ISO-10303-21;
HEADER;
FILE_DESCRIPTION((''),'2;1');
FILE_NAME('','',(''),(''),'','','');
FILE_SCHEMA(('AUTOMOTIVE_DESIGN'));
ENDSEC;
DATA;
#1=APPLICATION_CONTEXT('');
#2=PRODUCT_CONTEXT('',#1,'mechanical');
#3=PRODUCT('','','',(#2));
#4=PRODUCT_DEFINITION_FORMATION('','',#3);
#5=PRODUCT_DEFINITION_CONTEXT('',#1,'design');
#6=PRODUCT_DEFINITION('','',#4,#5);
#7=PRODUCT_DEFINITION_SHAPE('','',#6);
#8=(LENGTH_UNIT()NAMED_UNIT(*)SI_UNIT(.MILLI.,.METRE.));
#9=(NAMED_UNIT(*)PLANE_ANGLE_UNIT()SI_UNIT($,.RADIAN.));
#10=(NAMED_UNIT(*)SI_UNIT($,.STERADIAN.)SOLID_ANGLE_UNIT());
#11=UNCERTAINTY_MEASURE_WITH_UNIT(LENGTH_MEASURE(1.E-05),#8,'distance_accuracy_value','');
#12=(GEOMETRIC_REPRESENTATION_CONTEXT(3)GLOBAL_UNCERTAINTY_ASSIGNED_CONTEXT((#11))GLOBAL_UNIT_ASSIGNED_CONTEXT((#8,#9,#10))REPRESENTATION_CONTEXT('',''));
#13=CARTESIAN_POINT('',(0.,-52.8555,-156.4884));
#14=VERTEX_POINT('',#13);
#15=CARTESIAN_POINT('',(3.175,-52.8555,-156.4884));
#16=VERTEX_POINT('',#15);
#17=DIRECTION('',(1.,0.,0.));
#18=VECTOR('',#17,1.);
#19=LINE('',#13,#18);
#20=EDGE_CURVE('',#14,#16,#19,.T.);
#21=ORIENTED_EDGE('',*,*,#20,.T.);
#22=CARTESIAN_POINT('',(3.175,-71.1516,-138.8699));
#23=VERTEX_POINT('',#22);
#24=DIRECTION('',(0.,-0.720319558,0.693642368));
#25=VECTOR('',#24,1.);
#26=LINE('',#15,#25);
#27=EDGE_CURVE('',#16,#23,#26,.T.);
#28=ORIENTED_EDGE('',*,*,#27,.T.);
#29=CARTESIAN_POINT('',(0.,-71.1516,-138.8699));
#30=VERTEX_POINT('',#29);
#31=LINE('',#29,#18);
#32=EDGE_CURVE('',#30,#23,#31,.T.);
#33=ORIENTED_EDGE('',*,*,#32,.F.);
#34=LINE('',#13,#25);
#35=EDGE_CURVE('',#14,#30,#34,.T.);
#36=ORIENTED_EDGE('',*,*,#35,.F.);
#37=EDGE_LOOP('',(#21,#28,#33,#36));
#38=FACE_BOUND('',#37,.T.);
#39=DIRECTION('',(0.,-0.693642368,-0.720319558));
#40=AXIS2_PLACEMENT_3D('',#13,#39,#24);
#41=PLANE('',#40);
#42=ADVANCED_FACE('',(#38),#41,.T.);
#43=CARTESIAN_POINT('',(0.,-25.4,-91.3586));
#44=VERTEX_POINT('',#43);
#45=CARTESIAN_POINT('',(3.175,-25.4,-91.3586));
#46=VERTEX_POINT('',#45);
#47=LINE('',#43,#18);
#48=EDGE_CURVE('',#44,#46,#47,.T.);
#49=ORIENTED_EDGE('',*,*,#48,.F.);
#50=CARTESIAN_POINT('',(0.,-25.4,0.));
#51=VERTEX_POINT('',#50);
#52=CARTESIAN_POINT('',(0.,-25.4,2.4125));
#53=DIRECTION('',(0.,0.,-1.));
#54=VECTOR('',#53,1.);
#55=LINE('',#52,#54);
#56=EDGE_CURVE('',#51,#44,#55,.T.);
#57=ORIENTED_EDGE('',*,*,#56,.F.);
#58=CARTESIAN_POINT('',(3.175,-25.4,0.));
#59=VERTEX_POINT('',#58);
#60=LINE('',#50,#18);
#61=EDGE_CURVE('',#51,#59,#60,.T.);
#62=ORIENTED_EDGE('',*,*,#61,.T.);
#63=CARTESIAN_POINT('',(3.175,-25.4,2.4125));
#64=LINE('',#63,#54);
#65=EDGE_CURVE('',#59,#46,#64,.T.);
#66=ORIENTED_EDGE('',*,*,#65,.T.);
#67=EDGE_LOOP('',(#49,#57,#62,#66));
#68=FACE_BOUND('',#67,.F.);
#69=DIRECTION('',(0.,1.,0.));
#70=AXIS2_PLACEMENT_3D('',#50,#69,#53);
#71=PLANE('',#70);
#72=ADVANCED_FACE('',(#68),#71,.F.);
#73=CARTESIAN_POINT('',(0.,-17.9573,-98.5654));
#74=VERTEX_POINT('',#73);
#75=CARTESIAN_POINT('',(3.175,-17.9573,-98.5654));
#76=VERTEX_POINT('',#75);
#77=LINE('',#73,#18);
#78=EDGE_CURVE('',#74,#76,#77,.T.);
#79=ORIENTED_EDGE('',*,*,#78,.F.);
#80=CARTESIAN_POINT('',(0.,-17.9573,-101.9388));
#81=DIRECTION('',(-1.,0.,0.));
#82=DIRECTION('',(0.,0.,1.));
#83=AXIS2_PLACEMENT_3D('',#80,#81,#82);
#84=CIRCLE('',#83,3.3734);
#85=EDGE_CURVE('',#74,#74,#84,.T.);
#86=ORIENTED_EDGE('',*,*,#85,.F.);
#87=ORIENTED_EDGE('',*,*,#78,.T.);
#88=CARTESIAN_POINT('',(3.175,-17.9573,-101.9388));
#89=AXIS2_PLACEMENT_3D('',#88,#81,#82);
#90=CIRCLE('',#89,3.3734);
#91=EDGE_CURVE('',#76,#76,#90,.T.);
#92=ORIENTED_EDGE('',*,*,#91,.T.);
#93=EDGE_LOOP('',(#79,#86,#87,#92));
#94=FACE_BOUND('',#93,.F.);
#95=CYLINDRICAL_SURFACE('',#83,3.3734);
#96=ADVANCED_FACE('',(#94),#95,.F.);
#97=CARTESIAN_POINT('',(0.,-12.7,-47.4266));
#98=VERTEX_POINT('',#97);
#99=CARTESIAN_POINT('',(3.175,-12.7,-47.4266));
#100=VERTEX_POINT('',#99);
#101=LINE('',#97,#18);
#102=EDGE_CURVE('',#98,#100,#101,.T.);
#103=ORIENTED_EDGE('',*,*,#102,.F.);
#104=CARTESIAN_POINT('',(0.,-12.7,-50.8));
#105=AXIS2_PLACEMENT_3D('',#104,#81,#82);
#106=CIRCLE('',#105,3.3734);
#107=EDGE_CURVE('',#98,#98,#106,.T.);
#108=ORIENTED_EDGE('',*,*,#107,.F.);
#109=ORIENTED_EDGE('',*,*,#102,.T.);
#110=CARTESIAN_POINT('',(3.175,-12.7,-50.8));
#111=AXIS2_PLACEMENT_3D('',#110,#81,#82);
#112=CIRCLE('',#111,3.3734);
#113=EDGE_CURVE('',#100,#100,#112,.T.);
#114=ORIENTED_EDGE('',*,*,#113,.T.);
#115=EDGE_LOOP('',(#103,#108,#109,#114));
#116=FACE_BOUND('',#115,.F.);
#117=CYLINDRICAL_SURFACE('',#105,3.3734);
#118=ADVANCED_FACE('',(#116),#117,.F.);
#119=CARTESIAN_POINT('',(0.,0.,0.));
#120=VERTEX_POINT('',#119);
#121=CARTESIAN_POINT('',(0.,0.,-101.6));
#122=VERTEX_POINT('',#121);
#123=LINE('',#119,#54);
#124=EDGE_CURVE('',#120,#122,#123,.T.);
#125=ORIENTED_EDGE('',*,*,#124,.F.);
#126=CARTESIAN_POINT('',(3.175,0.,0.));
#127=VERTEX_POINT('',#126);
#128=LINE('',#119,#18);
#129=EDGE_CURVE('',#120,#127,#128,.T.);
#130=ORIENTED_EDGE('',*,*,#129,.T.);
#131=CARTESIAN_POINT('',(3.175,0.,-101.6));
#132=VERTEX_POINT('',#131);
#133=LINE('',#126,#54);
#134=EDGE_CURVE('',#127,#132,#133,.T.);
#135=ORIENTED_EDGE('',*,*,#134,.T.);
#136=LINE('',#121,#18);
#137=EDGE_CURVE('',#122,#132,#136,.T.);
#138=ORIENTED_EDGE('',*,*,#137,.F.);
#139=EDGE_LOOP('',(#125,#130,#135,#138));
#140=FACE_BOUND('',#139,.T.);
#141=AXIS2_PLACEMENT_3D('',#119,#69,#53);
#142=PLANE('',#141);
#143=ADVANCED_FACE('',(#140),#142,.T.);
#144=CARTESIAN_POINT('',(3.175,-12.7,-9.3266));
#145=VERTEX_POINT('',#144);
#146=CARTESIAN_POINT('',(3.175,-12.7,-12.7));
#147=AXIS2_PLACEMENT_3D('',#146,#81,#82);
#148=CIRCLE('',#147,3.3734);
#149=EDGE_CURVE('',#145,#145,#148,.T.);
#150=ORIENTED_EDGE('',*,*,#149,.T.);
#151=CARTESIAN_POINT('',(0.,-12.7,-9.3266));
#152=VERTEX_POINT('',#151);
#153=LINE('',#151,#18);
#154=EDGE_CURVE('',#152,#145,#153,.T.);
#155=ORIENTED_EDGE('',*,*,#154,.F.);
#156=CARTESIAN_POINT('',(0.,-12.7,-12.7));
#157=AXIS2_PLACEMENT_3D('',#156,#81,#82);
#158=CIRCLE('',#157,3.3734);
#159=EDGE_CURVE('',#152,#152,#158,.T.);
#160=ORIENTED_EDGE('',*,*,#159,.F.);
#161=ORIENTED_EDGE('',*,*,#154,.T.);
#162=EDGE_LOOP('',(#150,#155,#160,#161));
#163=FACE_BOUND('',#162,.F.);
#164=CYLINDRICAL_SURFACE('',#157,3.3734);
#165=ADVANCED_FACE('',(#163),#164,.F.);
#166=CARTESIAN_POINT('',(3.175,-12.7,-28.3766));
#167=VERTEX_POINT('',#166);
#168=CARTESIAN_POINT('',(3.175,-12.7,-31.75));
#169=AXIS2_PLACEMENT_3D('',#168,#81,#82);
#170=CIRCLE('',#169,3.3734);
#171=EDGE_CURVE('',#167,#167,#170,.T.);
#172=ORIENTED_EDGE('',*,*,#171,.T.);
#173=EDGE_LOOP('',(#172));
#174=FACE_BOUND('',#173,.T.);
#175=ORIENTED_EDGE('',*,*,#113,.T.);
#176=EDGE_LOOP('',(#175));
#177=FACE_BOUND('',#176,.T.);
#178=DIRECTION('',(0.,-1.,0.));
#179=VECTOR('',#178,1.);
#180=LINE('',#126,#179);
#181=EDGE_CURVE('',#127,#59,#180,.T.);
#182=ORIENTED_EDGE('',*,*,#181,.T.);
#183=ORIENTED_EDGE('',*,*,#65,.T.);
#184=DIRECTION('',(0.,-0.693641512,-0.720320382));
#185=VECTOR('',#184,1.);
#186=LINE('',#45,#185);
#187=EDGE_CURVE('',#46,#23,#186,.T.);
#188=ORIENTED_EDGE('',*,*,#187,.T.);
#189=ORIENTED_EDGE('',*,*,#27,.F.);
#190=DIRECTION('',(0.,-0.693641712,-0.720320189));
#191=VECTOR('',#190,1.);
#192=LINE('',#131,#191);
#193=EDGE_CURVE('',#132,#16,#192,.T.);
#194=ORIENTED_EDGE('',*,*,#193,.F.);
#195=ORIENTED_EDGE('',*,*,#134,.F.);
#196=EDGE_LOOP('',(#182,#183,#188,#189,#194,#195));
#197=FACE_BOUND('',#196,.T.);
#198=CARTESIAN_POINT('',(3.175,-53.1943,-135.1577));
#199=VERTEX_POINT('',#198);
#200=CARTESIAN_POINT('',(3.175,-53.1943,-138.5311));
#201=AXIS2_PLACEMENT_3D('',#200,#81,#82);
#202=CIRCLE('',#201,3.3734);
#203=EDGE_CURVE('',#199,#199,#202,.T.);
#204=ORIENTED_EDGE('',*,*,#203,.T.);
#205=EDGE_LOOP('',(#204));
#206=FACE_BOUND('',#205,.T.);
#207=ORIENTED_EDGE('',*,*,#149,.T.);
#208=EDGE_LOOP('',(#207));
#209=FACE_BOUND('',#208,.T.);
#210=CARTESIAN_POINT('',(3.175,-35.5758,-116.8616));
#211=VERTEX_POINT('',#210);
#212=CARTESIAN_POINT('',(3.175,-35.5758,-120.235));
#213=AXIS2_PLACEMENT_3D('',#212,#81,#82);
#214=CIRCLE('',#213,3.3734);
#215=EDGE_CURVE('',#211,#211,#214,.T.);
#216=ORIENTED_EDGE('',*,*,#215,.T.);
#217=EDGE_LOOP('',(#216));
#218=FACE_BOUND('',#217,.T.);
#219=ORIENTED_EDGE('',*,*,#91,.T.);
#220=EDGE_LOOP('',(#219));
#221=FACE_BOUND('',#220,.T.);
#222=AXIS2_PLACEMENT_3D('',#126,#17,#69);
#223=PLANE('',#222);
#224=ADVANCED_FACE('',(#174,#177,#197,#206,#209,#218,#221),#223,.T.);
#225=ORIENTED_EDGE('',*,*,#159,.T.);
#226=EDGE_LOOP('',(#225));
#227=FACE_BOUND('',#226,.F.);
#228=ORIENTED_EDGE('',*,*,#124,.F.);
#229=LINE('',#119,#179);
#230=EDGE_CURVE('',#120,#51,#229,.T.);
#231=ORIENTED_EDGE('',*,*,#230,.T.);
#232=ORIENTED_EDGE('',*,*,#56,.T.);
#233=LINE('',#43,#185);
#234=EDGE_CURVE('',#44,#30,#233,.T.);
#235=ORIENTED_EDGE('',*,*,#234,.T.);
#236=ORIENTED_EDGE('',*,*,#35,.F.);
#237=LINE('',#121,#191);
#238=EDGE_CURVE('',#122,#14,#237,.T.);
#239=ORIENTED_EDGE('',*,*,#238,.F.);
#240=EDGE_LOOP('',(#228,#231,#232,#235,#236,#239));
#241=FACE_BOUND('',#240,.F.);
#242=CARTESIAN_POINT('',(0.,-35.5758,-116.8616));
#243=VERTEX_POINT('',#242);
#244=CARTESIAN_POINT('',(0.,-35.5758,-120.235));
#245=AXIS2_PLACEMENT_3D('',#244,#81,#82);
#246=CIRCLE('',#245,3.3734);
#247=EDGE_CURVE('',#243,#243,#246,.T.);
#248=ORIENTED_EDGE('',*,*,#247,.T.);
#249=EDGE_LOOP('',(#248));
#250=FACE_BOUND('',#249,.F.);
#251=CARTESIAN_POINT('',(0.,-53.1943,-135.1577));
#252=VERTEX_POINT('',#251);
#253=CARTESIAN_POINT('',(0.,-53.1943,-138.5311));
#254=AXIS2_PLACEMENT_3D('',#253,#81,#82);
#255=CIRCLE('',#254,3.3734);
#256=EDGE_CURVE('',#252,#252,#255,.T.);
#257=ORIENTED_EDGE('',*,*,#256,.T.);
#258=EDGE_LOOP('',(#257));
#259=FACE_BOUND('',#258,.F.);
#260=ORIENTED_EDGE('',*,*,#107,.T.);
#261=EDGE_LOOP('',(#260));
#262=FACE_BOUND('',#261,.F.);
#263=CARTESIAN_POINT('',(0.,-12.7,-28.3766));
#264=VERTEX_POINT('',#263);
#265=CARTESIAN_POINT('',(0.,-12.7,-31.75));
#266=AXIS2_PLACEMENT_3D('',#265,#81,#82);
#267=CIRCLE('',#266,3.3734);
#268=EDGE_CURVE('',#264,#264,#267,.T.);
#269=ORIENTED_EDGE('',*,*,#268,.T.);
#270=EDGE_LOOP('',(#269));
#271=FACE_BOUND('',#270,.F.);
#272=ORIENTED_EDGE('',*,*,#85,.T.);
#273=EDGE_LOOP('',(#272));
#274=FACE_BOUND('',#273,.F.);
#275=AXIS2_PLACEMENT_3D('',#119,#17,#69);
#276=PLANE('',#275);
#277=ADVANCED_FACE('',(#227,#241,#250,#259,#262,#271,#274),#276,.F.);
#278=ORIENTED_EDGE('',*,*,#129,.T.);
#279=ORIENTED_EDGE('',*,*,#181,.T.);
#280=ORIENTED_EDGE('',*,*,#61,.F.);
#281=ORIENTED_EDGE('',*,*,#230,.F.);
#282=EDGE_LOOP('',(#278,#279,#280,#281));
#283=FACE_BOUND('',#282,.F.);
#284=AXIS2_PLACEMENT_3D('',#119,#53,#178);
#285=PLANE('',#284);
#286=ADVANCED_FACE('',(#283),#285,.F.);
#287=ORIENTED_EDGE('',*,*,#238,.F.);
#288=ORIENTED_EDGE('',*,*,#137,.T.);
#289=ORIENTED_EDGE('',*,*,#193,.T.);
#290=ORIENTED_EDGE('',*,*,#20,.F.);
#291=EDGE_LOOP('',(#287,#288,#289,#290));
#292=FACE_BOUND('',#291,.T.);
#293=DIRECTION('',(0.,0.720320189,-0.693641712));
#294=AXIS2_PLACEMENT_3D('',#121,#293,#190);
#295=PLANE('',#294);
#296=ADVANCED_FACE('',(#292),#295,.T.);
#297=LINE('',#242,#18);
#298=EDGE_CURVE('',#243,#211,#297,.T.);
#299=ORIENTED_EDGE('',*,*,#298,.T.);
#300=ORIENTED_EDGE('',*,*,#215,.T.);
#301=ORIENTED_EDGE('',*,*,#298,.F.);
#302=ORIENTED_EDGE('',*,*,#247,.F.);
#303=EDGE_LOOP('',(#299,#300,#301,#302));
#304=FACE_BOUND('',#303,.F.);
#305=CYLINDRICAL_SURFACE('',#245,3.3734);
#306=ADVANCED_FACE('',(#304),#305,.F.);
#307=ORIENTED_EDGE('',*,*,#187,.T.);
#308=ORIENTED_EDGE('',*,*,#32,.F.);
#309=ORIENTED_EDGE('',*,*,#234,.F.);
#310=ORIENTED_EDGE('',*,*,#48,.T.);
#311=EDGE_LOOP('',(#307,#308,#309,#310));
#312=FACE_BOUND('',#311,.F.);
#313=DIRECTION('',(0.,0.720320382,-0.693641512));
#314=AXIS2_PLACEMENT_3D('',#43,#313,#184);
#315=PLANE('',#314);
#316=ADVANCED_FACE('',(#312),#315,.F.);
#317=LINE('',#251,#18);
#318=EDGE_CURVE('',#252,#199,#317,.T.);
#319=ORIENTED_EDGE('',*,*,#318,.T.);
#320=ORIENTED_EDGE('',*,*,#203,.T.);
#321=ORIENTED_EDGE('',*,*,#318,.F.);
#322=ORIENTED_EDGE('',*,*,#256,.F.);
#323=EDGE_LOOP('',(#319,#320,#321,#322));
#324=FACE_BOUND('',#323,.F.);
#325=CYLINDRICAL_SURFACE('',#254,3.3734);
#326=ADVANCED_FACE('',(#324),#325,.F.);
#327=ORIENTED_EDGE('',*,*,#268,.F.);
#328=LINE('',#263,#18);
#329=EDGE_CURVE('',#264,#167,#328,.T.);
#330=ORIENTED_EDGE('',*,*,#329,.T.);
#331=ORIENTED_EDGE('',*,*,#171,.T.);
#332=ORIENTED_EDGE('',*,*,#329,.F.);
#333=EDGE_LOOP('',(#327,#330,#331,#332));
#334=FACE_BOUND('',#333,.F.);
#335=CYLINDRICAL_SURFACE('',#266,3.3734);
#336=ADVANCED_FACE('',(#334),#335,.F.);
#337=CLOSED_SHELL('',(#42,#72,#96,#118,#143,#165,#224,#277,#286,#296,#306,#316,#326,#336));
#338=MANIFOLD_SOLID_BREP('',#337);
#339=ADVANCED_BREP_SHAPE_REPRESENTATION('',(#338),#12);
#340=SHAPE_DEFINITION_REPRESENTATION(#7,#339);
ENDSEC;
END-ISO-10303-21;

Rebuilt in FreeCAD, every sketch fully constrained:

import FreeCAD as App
import Part
import Sketcher
from FreeCAD import Vector
Q = App.Units.Quantity


def add_polygon(sketch, points):
    """Adds a closed chain of lines whose ends are joined by coincident constraints."""
    first, n = sketch.GeometryCount, len(points)
    for a, b in zip(points, points[1:] + points[:1]):
        sketch.addGeometry(Part.LineSegment(App.Vector(*a, 0), App.Vector(*b, 0)), False)
    for i in range(n):
        sketch.addConstraint(Sketcher.Constraint("Coincident", first + i, 2, first + (i + 1) % n, 1))

doc = App.newDocument("Part")
body = doc.addObject("PartDesign::Body", "Body")

# Sketch on YZ plane
sketch1 = doc.addObject("Sketcher::SketchObject", "Sketch")
body.addObject(sketch1)
sketch1.AttachmentSupport = (doc.YZ_Plane, [""])
sketch1.MapMode = "FlatFace"
add_polygon(sketch1, [(0, -102), (0, 0), (-25, 0), (-25, -91), (-71, -139), (-53, -156)])  # lines 0-5
sketch1.addConstraint(Sketcher.Constraint("Vertical", 0))
sketch1.addConstraint(Sketcher.Constraint("Horizontal", 1))
sketch1.addConstraint(Sketcher.Constraint("Vertical", 2))
sketch1.addConstraint(Sketcher.Constraint("Coincident", 0, 2, -1, 1))
sketch1.addConstraint(Sketcher.Constraint("Perpendicular", 3, 4))
sketch1.addConstraint(Sketcher.Constraint("Perpendicular", 4, 5))
sketch1.addConstraint(Sketcher.Constraint("DistanceX", 1, 2, 1, 1, Q("1 in")))
sketch1.addConstraint(Sketcher.Constraint("DistanceY", 0, 1, 0, 2, Q("4 in")))
sketch1.addConstraint(Sketcher.Constraint("Distance", 4, Q("1 in")))
sketch1.addConstraint(Sketcher.Constraint("Distance", 5, Q("3 in")))
sketch1.addConstraint(Sketcher.Constraint("Angle", 3, Q("-133.919 deg")))
pad1 = doc.addObject("PartDesign::Pad", "Pad")
body.addObject(pad1)
pad1.Profile = sketch1
pad1.Length = Q("0.125 in")

# Sketch on YZ plane
sketch2 = doc.addObject("Sketcher::SketchObject", "Sketch001")
body.addObject(sketch2)
sketch2.AttachmentSupport = (doc.YZ_Plane, [""])
sketch2.MapMode = "FlatFace"
sketch2.addGeometry(Part.Circle(Vector(-12.7, -12.7, 0), Vector(0, 0, 1), 3.4), False)
sketch2.addGeometry(Part.Circle(Vector(-12.7, -31.8, 0), Vector(0, 0, 1), 3.4), False)
sketch2.addGeometry(Part.Circle(Vector(-12.7, -50.8, 0), Vector(0, 0, 1), 3.4), False)
sketch2.addGeometry(Part.Circle(Vector(-53.2, -138.5, 0), Vector(0, 0, 1), 3.4), False)
sketch2.addGeometry(Part.Circle(Vector(-35.6, -120.2, 0), Vector(0, 0, 1), 3.4), False)
sketch2.addGeometry(Part.Circle(Vector(-18, -101.9, 0), Vector(0, 0, 1), 3.4), False)
sketch2.addConstraint(Sketcher.Constraint("Equal", 0, 1))
sketch2.addConstraint(Sketcher.Constraint("Equal", 1, 2))
sketch2.addConstraint(Sketcher.Constraint("Equal", 2, 3))
sketch2.addConstraint(Sketcher.Constraint("Equal", 3, 4))
sketch2.addConstraint(Sketcher.Constraint("Equal", 4, 5))
sketch2.addConstraint(Sketcher.Constraint("Vertical", 0, 3, 1, 3))
sketch2.addConstraint(Sketcher.Constraint("Vertical", 1, 3, 2, 3))
sketch2.addConstraint(Sketcher.Constraint("Diameter", 0, Q("0.265622 in")))
sketch2.addConstraint(Sketcher.Constraint("DistanceX", 0, 3, -1, 1, Q("0.5 in")))
sketch2.addConstraint(Sketcher.Constraint("DistanceY", 0, 3, -1, 1, Q("0.5 in")))
sketch2.addConstraint(Sketcher.Constraint("DistanceY", 2, 3, 0, 3, Q("1.5 in")))
sketch2.addConstraint(Sketcher.Constraint("DistanceY", 1, 3, 0, 3, Q("0.75 in")))
sketch2.addConstraint(Sketcher.Constraint("DistanceX", 3, 3, -1, 1, 53.1943))
sketch2.addConstraint(Sketcher.Constraint("DistanceY", 3, 3, -1, 1, 138.531))
sketch2.addConstraint(Sketcher.Constraint("DistanceX", 4, 3, -1, 1, 35.5758))
sketch2.addConstraint(Sketcher.Constraint("DistanceY", 4, 3, -1, 1, 120.235))
sketch2.addConstraint(Sketcher.Constraint("DistanceX", 5, 3, -1, 1, 17.9573))
sketch2.addConstraint(Sketcher.Constraint("DistanceY", 5, 3, -1, 1, 101.9388))
pocket1 = doc.addObject("PartDesign::Pocket", "Pocket")
body.addObject(pocket1)
pocket1.Profile = sketch2
pocket1.Length = Q("0.125 in")
pocket1.Reversed = True

doc.recompute()
